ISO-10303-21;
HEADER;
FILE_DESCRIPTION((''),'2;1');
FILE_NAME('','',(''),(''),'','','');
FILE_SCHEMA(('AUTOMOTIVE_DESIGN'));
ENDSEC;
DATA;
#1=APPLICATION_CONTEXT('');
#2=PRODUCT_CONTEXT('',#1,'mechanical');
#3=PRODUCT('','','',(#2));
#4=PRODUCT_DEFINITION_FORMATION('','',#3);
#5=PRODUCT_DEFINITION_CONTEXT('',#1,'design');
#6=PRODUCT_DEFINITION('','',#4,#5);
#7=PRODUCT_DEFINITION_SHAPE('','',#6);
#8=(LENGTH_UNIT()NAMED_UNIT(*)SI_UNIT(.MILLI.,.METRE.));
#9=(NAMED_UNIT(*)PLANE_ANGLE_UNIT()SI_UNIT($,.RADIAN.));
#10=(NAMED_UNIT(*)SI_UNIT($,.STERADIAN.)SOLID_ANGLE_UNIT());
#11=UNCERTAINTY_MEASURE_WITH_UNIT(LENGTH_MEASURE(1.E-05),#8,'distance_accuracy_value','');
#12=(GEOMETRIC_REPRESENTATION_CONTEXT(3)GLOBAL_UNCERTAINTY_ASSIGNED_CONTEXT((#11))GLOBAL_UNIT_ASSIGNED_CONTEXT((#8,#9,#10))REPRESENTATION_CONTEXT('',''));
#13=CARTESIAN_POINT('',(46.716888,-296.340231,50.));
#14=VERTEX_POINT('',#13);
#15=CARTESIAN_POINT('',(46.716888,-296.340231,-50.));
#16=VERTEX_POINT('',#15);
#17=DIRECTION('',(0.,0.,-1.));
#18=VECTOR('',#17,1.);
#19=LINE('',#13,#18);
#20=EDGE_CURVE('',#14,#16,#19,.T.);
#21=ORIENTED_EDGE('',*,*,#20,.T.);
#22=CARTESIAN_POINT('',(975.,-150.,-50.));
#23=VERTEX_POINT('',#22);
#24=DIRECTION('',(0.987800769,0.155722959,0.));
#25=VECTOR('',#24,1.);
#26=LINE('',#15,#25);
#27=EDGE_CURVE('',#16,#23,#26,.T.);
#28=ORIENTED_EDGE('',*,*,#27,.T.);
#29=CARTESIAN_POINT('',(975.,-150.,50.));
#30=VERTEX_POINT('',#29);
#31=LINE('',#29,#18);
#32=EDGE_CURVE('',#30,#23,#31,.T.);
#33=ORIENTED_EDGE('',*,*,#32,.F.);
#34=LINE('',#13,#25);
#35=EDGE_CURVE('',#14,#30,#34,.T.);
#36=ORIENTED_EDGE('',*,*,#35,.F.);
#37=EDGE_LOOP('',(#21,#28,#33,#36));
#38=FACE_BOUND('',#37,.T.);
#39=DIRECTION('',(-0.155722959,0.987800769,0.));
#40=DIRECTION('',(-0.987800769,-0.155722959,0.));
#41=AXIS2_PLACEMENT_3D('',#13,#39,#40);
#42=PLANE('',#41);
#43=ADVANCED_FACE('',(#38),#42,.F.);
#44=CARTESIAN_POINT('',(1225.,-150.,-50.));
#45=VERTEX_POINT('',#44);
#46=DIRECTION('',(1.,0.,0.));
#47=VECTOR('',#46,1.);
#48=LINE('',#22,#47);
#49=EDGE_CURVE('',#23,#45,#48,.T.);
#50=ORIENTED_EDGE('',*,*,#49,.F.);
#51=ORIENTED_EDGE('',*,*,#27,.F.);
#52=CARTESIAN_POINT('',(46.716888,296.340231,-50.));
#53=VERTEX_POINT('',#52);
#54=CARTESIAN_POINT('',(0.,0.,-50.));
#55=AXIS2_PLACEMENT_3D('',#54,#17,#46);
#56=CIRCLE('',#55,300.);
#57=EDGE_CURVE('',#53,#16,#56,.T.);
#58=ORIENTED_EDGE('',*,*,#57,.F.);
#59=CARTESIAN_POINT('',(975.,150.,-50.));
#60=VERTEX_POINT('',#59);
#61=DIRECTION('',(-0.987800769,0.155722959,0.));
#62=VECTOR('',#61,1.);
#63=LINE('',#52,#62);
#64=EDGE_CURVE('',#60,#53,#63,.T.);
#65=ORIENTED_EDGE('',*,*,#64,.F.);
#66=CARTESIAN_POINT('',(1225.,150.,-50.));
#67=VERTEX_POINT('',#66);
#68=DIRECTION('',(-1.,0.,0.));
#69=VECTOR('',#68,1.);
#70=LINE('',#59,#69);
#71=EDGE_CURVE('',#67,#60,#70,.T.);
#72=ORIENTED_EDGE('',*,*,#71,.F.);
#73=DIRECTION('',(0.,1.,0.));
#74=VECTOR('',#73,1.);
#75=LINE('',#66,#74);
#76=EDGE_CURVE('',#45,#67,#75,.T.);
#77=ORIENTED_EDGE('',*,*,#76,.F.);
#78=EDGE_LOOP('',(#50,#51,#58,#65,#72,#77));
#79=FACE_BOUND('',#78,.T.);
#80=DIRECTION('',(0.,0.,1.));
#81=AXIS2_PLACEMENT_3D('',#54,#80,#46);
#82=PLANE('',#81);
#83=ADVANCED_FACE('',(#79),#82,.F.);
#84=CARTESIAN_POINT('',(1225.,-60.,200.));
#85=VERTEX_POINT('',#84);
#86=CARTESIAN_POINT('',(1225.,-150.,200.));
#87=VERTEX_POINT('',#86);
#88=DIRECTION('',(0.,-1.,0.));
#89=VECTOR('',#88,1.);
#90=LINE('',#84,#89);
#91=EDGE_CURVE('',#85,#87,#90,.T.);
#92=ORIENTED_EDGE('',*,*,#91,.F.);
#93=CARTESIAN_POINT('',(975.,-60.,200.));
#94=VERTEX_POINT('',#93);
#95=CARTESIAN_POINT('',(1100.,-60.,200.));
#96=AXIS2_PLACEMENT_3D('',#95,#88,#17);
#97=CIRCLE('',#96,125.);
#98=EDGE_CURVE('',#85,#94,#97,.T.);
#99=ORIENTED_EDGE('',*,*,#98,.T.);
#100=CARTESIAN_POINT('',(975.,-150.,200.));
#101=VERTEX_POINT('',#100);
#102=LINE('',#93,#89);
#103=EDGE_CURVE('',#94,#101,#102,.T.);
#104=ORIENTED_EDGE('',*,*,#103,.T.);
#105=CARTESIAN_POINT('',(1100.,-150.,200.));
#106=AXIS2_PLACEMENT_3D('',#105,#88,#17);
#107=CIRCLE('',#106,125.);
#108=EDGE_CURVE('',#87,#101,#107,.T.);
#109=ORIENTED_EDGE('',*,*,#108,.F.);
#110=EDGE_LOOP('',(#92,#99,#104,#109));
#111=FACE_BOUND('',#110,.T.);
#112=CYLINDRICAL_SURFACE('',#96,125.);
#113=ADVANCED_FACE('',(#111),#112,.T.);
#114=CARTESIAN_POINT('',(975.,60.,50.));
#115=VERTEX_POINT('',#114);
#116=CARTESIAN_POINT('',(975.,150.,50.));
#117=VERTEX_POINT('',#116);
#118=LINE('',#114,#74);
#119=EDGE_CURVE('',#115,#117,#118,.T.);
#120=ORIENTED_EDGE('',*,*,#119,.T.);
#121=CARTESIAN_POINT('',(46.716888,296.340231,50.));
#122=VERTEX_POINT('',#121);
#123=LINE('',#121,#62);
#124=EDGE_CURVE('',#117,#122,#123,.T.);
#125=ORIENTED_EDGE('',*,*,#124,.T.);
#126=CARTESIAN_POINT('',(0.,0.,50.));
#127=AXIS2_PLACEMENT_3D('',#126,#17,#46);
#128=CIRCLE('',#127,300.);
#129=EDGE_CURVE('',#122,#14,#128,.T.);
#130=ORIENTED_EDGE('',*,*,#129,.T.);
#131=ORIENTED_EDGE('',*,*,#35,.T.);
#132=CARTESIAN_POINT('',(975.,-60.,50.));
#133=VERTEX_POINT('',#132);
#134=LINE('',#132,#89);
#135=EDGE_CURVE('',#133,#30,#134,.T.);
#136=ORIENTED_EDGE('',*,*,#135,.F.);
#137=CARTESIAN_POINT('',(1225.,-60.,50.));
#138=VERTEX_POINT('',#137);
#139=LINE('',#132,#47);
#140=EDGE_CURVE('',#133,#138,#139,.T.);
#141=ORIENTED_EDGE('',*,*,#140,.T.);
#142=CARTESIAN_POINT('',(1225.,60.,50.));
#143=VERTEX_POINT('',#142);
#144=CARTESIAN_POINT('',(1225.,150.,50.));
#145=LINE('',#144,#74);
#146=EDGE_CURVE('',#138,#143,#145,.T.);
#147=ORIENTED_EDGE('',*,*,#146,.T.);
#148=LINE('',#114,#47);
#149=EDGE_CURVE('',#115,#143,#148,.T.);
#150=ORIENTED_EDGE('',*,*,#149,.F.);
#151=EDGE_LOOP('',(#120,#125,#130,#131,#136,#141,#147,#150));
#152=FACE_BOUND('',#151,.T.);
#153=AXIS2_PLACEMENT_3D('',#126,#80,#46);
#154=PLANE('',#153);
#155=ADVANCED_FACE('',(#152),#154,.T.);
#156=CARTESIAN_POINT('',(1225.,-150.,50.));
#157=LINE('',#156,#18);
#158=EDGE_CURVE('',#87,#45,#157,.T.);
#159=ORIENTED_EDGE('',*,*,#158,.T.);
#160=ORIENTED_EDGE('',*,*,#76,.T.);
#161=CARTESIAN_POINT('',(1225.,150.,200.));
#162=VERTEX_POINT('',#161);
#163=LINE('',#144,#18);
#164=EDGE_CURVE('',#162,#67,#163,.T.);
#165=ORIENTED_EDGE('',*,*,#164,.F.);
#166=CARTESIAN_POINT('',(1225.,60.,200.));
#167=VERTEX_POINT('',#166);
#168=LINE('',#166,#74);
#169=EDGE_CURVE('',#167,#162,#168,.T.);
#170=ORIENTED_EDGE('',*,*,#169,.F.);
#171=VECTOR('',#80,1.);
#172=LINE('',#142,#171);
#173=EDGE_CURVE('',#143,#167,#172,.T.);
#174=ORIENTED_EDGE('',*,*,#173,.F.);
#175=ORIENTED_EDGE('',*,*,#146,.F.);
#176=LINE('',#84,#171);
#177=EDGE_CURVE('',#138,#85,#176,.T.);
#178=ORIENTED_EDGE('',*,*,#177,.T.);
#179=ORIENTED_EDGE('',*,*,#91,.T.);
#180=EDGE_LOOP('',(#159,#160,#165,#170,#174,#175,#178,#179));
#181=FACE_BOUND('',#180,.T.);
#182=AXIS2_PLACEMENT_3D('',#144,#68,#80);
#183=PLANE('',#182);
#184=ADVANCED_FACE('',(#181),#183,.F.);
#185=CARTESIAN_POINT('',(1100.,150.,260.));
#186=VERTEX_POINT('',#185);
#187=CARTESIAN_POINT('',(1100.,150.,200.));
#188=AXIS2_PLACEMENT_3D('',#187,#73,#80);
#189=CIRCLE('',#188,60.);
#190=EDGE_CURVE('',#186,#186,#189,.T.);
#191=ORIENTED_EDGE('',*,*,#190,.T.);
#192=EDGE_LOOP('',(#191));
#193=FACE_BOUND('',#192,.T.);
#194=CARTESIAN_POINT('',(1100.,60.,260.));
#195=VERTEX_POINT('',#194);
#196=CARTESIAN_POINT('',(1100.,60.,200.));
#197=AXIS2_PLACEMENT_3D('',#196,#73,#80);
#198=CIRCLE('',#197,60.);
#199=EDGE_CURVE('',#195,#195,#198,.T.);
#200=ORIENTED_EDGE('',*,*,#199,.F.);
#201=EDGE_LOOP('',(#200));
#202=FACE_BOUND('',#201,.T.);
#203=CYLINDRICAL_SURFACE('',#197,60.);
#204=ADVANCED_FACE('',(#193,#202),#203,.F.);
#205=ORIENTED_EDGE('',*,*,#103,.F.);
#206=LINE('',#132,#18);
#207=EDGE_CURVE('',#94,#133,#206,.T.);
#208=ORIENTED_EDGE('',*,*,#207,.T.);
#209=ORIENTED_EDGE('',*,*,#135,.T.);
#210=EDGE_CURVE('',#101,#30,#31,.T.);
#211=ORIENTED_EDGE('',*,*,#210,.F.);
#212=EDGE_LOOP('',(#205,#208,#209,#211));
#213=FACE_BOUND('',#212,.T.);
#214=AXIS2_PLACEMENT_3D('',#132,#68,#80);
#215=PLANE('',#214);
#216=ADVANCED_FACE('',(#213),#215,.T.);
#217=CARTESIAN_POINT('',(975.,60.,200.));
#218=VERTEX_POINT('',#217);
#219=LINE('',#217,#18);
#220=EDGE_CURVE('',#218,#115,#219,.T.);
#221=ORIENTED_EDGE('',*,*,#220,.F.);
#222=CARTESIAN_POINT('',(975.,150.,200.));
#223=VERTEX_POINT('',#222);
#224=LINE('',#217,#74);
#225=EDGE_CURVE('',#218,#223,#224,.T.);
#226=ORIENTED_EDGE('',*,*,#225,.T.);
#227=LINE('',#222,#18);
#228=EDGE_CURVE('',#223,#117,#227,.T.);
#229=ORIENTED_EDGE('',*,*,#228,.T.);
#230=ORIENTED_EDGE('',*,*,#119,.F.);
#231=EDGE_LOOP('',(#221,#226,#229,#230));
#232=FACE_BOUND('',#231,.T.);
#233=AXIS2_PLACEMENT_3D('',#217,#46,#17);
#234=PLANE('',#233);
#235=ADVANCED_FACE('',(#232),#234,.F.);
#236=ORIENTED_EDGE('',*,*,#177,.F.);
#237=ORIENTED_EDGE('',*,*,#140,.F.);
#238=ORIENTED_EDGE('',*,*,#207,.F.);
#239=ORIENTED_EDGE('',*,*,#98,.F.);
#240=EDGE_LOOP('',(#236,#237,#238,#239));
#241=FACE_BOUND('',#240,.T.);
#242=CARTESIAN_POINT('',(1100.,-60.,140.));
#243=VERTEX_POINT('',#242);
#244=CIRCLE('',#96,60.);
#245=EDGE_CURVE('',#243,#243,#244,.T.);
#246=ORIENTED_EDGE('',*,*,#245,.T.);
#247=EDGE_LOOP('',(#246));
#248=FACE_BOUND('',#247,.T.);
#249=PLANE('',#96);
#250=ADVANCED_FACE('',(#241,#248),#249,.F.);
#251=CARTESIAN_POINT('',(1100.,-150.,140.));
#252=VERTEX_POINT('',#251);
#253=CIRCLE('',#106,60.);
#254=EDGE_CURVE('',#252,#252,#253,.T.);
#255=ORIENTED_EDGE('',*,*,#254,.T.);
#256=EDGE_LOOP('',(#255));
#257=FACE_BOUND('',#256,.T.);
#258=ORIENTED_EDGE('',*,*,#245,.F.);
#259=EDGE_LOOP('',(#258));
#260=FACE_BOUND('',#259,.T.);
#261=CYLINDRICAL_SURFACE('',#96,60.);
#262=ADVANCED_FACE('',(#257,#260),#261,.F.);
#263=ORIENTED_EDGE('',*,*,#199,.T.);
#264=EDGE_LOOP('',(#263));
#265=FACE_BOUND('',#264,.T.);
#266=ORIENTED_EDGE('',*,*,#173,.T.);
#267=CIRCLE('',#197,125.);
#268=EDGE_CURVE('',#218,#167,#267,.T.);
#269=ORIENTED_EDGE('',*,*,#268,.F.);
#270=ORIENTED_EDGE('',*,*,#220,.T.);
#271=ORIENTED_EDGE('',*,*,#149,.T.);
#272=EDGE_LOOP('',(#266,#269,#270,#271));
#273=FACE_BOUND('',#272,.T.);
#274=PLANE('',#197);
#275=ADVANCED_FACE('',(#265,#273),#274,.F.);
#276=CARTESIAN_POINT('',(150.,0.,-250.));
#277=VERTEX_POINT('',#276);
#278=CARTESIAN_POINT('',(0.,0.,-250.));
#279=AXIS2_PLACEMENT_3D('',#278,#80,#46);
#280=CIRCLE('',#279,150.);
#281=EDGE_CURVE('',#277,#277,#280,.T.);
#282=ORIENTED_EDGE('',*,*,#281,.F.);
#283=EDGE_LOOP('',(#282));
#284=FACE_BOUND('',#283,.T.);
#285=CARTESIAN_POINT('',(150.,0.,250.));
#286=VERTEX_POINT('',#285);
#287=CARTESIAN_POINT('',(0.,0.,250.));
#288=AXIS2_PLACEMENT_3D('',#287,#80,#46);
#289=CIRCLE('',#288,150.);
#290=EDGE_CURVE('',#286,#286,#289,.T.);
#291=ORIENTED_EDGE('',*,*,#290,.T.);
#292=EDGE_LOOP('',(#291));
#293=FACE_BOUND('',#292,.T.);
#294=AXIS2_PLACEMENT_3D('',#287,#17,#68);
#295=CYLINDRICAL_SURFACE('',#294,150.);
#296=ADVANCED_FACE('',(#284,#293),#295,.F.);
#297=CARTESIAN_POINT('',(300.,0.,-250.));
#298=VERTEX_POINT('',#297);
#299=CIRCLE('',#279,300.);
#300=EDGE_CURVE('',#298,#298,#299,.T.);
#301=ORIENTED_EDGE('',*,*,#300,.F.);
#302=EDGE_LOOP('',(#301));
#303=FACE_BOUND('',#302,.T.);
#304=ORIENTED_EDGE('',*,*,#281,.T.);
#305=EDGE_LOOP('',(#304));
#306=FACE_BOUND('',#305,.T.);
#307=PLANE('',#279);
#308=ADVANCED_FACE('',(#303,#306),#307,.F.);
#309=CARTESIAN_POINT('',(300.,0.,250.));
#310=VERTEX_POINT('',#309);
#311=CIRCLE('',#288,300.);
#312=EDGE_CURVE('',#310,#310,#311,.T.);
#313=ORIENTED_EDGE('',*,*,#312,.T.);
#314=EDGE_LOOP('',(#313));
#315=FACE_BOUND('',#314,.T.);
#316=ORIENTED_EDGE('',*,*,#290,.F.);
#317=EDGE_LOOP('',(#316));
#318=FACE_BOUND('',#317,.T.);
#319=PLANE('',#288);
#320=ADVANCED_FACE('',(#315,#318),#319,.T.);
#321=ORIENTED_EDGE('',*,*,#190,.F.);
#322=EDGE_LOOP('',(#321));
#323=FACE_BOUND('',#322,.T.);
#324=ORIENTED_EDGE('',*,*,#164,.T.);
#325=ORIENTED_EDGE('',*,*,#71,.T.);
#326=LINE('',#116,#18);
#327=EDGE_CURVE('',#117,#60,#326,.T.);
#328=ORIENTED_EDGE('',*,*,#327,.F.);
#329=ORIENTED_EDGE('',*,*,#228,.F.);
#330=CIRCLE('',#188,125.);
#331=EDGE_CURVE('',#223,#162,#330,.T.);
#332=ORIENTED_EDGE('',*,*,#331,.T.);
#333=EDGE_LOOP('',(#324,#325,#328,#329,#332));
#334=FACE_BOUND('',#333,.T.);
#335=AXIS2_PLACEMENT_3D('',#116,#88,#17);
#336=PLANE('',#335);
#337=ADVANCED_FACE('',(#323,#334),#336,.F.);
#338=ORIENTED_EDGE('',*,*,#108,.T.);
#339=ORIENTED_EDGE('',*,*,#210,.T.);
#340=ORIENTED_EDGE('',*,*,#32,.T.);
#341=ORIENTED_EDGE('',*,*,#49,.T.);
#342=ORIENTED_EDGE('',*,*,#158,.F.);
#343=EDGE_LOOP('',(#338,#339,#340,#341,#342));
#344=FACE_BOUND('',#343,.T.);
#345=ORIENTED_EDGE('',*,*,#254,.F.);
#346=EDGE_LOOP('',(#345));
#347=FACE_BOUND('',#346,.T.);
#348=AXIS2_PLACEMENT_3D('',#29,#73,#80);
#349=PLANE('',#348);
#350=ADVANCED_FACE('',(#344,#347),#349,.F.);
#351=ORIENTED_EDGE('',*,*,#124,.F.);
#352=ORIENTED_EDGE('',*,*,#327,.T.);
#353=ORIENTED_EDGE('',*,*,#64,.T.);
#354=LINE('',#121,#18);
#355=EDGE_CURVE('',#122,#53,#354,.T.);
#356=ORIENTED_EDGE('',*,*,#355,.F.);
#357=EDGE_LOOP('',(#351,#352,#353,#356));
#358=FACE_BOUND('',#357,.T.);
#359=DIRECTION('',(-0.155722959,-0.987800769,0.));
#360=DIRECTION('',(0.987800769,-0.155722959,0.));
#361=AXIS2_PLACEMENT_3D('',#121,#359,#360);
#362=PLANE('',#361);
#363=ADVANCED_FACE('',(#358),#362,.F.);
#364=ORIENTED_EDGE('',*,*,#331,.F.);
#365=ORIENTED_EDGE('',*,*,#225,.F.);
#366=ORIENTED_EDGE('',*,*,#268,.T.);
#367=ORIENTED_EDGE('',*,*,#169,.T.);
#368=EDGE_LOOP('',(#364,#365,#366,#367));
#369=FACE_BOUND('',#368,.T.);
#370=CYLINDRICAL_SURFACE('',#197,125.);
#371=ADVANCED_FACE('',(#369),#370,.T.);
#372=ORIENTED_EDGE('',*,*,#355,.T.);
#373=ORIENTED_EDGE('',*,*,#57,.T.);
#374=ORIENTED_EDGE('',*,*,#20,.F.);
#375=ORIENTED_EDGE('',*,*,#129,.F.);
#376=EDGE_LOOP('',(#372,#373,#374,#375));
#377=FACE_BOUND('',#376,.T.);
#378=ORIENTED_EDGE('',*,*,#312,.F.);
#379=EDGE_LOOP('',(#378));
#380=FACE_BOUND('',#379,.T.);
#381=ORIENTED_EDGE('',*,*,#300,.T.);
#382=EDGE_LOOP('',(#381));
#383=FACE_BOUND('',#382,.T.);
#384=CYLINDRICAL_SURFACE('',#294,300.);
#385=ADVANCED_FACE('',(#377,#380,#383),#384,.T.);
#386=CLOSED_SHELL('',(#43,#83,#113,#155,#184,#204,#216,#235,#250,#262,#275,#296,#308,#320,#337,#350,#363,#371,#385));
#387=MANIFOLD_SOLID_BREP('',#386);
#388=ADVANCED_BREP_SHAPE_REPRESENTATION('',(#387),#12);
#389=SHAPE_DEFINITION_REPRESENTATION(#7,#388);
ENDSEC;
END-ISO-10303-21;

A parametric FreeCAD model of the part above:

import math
import FreeCAD as App
import Part
import Sketcher

doc = App.newDocument("Part")
body = doc.addObject("PartDesign::Body", "Body")

sketch1 = doc.addObject("Sketcher::SketchObject", "Sketch")
body.addObject(sketch1)
sketch1.AttachmentSupport = (doc.XY_Plane, [""])
sketch1.MapMode = "FlatFace"
sketch1.addGeometry([
    Part.Circle(App.Vector(0, 0, 0), App.Vector(0, 0, 1), 300),
    Part.Circle(App.Vector(0, 0, 0), App.Vector(0, 0, 1), 150),
], False)
sketch1.addConstraint([
    Sketcher.Constraint("Coincident", 0, 3, -1, 1),
    Sketcher.Constraint("Coincident", 1, 3, -1, 1),
    Sketcher.Constraint("Diameter", 0, 600.0),
    Sketcher.Constraint("Diameter", 1, 300.0),
])
pad1 = doc.addObject("PartDesign::Pad", "Pad")
body.addObject(pad1)
pad1.Profile = sketch1
pad1.Length = 500
pad1.Midplane = True

sketch2 = doc.addObject("Sketcher::SketchObject", "Sketch001")
body.addObject(sketch2)
sketch2.AttachmentSupport = (doc.XY_Plane, [""])
sketch2.MapMode = "FlatFace"
sketch2.addGeometry([
    Part.LineSegment(App.Vector(975, 150, 0), App.Vector(47, 296, 0)),
    Part.ArcOfCircle(Part.Circle(App.Vector(0, 0, 0), App.Vector(0, 0, 1), 300), math.radians(-81), math.radians(81)),
    Part.LineSegment(App.Vector(47, -296, 0), App.Vector(975, -150, 0)),
    Part.LineSegment(App.Vector(975, -150, 0), App.Vector(1225, -150, 0)),
    Part.LineSegment(App.Vector(1225, -150, 0), App.Vector(1225, 150, 0)),
    Part.LineSegment(App.Vector(1225, 150, 0), App.Vector(975, 150, 0)),
], False)
sketch2.addConstraint([
    Sketcher.Constraint("Tangent", 0, 2, 1, 2),
    Sketcher.Constraint("Tangent", 1, 1, 2, 1),
    Sketcher.Constraint("Coincident", 2, 2, 3, 1),
    Sketcher.Constraint("Coincident", 3, 2, 4, 1),
    Sketcher.Constraint("Coincident", 4, 2, 5, 1),
    Sketcher.Constraint("Coincident", 5, 2, 0, 1),
    Sketcher.Constraint("Horizontal", 3),
    Sketcher.Constraint("Vertical", 4),
    Sketcher.Constraint("Horizontal", 5),
    Sketcher.Constraint("Coincident", 1, 3, -1, 1),
    Sketcher.Constraint("Symmetric", 2, 2, 5, 2, -1),
    Sketcher.Constraint("Radius", 1, 300.0),
    Sketcher.Constraint("DistanceX", 3, 1, 3, 2, 250.0),
    Sketcher.Constraint("DistanceY", 4, 1, 4, 2, 300.0),
    Sketcher.Constraint("DistanceX", -1, 1, 2, 2, 975.0),
])
pad2 = doc.addObject("PartDesign::Pad", "Pad001")
body.addObject(pad2)
pad2.Profile = sketch2
pad2.Length = 100
pad2.Midplane = True

sketch3 = doc.addObject("Sketcher::SketchObject", "Sketch002")
body.addObject(sketch3)
sketch3.AttachmentSupport = (doc.XZ_Plane, [""])
sketch3.MapMode = "FlatFace"
sketch3.AttachmentOffset = App.Placement(App.Vector(0, 0, 150), App.Rotation())
sketch3.addGeometry([
    Part.LineSegment(App.Vector(975, 200, 0), App.Vector(975, 50, 0)),
    Part.LineSegment(App.Vector(975, 50, 0), App.Vector(1225, 50, 0)),
    Part.LineSegment(App.Vector(1225, 50, 0), App.Vector(1225, 200, 0)),
    Part.ArcOfCircle(Part.Circle(App.Vector(1100, 200, 0), App.Vector(0, 0, 1), 125), math.radians(0), math.radians(180)),
    Part.Circle(App.Vector(1100, 200, 0), App.Vector(0, 0, 1), 60),
], False)
sketch3.addConstraint([
    Sketcher.Constraint("Coincident", 0, 2, 1, 1),
    Sketcher.Constraint("Coincident", 1, 2, 2, 1),
    Sketcher.Constraint("Tangent", 2, 2, 3, 1),
    Sketcher.Constraint("Tangent", 3, 2, 0, 1),
    Sketcher.Constraint("Vertical", 0),
    Sketcher.Constraint("Horizontal", 1),
    Sketcher.Constraint("Vertical", 2),
    Sketcher.Constraint("Coincident", 4, 3, 3, 3),
    Sketcher.Constraint("Diameter", 4, 120.0),
    Sketcher.Constraint("Radius", 3, 125.0),
    Sketcher.Constraint("DistanceY", 0, 2, 0, 1, 150.0),
    Sketcher.Constraint("DistanceX", -1, 1, 3, 3, 1100.0),
    Sketcher.Constraint("DistanceY", -1, 1, 3, 3, 200.0),
])
pad3 = doc.addObject("PartDesign::Pad", "Pad002")
body.addObject(pad3)
pad3.Profile = sketch3
pad3.Length = 90
pad3.Reversed = True

sketch4 = doc.addObject("Sketcher::SketchObject", "Sketch003")
body.addObject(sketch4)
sketch4.AttachmentSupport = (doc.XZ_Plane, [""])
sketch4.MapMode = "FlatFace"
sketch4.AttachmentOffset = App.Placement(App.Vector(0, 0, -150), App.Rotation())
sketch4.addGeometry([
    Part.LineSegment(App.Vector(975, 50, 0), App.Vector(975, 200, 0)),
    Part.ArcOfCircle(Part.Circle(App.Vector(1100, 200, 0), App.Vector(0, 0, 1), 125), math.radians(0), math.radians(180)),
    Part.LineSegment(App.Vector(1225, 200, 0), App.Vector(1225, 50, 0)),
    Part.LineSegment(App.Vector(1225, 50, 0), App.Vector(975, 50, 0)),
    Part.Circle(App.Vector(1100, 200, 0), App.Vector(0, 0, 1), 60),
], False)
sketch4.addConstraint([
    Sketcher.Constraint("Tangent", 0, 2, 1, 2),
    Sketcher.Constraint("Tangent", 1, 1, 2, 1),
    Sketcher.Constraint("Coincident", 2, 2, 3, 1),
    Sketcher.Constraint("Coincident", 3, 2, 0, 1),
    Sketcher.Constraint("Vertical", 0),
    Sketcher.Constraint("Vertical", 2),
    Sketcher.Constraint("Horizontal", 3),
    Sketcher.Constraint("Coincident", 4, 3, 1, 3),
    Sketcher.Constraint("Diameter", 4, 120.0),
    Sketcher.Constraint("Radius", 1, 125.0),
    Sketcher.Constraint("DistanceY", 0, 1, 0, 2, 150.0),
    Sketcher.Constraint("DistanceX", -1, 1, 1, 3, 1100.0),
    Sketcher.Constraint("DistanceY", -1, 1, 1, 3, 200.0),
])
pad4 = doc.addObject("PartDesign::Pad", "Pad003")
body.addObject(pad4)
pad4.Profile = sketch4
pad4.Length = 90

doc.recompute()
